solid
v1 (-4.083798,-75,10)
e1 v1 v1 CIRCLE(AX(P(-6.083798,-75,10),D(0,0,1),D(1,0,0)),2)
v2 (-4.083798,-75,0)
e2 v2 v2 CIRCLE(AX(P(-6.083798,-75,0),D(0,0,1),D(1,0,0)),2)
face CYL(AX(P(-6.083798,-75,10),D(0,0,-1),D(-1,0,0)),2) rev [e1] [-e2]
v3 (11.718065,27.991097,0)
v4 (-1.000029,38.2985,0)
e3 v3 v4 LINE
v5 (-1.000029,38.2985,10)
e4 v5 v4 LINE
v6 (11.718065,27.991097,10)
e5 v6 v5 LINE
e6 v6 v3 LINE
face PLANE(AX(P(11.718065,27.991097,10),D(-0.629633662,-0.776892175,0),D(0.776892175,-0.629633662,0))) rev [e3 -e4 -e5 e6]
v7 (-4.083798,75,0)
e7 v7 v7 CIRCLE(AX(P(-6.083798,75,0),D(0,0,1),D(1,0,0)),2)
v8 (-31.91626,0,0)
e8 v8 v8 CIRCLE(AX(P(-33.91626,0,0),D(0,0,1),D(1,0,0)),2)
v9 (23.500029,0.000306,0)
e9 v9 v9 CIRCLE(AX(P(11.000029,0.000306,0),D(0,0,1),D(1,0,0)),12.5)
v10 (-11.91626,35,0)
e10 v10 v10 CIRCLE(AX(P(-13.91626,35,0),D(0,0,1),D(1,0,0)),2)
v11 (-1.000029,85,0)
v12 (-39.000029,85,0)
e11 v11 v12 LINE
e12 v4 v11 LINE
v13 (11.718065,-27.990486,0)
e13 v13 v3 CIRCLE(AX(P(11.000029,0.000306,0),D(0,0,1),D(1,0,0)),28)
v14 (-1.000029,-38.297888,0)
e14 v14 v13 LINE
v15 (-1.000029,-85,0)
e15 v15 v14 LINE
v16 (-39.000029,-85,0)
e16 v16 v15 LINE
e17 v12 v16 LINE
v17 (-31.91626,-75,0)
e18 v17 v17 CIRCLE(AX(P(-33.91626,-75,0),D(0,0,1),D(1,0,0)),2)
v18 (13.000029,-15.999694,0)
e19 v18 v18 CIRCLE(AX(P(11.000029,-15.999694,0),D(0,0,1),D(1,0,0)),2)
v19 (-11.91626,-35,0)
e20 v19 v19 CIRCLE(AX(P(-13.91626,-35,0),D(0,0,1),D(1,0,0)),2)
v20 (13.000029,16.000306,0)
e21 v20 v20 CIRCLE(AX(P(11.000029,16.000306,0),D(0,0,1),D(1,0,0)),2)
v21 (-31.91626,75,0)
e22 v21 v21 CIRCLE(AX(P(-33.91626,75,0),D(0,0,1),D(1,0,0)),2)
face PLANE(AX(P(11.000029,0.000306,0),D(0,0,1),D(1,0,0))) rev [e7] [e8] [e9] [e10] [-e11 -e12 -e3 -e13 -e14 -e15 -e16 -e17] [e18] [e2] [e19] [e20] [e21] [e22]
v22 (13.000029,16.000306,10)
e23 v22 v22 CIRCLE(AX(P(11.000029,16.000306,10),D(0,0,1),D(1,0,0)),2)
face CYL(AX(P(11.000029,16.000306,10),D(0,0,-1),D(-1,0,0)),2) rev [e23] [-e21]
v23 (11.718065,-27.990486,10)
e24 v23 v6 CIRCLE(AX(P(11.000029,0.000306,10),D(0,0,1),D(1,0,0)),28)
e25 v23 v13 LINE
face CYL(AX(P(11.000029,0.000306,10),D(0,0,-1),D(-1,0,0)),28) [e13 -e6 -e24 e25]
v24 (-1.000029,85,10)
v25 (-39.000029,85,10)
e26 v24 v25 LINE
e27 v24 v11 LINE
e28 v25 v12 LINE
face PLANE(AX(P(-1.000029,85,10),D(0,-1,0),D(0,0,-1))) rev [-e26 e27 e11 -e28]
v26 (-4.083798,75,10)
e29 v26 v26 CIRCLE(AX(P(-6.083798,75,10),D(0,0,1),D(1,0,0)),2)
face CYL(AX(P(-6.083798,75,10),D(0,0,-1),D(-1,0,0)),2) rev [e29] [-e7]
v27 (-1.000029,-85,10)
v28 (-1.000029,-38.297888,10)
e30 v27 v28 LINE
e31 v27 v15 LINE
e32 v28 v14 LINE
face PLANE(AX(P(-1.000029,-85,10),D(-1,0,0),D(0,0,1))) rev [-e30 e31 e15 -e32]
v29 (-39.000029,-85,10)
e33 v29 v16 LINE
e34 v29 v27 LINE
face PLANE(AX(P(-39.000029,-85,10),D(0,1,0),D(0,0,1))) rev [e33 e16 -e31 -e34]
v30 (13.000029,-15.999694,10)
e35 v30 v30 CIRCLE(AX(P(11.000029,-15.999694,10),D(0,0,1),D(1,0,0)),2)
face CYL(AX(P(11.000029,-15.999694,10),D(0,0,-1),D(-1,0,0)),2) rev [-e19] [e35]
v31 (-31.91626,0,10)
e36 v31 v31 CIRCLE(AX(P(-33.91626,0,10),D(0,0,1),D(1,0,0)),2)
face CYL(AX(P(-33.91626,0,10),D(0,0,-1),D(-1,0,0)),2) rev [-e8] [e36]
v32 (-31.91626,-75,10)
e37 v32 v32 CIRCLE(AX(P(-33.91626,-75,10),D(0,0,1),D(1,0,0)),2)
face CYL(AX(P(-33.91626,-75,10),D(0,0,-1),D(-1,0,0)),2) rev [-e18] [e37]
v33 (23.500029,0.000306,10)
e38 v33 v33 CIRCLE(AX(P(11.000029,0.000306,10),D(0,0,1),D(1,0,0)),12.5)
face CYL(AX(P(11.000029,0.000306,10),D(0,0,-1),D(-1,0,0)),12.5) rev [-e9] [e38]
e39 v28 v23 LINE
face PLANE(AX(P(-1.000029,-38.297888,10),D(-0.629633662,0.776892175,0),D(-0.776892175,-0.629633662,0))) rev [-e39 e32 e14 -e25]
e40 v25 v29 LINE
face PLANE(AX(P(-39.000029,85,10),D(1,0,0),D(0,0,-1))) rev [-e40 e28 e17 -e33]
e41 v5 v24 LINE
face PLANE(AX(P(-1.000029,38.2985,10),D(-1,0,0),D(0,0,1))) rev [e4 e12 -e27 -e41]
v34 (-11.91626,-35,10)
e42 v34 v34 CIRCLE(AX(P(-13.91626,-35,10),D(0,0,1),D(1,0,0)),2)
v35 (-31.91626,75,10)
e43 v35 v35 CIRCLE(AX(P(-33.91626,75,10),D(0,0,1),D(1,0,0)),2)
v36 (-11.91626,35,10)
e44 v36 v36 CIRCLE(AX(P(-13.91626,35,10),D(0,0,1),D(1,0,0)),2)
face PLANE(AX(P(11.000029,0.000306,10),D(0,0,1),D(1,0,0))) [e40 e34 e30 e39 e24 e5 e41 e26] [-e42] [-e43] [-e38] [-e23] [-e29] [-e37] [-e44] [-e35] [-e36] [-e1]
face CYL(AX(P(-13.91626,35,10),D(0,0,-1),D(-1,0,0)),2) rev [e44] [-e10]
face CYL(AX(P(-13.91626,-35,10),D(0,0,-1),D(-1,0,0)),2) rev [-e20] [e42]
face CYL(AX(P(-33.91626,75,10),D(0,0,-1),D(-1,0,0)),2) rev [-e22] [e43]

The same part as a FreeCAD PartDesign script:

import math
import FreeCAD as App
import Part
import Sketcher
Q = App.Units.Quantity

doc = App.newDocument("Part")
body = doc.addObject("PartDesign::Body", "Body")

sketch1 = body.newObject("Sketcher::SketchObject", "Sketch")
sketch1.AttachmentSupport = (doc.getObject("XY_Plane"), [""])
sketch1.MapMode = "FlatFace"
sketch1.addGeometry(Part.LineSegment(App.Vector(-1.000029, -38.297888, 0), App.Vector(11.718065, -27.990486, 0)), False)
sketch1.addGeometry(Part.ArcOfCircle(Part.Circle(App.Vector(11.000029, 0.000306, 0), App.Vector(0, 0, 1), 28), math.radians(-88.530536), math.radians(88.530536)), False)
sketch1.addGeometry(Part.LineSegment(App.Vector(11.718065, 27.991097, 0), App.Vector(-1.000029, 38.2985, 0)), False)
sketch1.addGeometry(Part.LineSegment(App.Vector(-1.000029, 38.2985, 0), App.Vector(-1.000029, 85, 0)), False)
sketch1.addGeometry(Part.LineSegment(App.Vector(-1.000029, 85, 0), App.Vector(-39.000029, 85, 0)), False)
sketch1.addGeometry(Part.LineSegment(App.Vector(-39.000029, 85, 0), App.Vector(-39.000029, -85, 0)), False)
sketch1.addGeometry(Part.LineSegment(App.Vector(-39.000029, -85, 0), App.Vector(-1.000029, -85, 0)), False)
sketch1.addGeometry(Part.LineSegment(App.Vector(-1.000029, -85, 0), App.Vector(-1.000029, -38.297888, 0)), False)
sketch1.addGeometry(Part.Circle(App.Vector(-33.91626, -75, 0), App.Vector(0, 0, 1), 2), False)
sketch1.addGeometry(Part.Circle(App.Vector(-13.91626, -35, 0), App.Vector(0, 0, 1), 2), False)
sketch1.addGeometry(Part.Circle(App.Vector(-6.083798, -75, 0), App.Vector(0, 0, 1), 2), False)
sketch1.addGeometry(Part.Circle(App.Vector(11.000029, -15.999694, 0), App.Vector(0, 0, 1), 2), False)
sketch1.addGeometry(Part.Circle(App.Vector(-33.91626, 0, 0), App.Vector(0, 0, 1), 2), False)
sketch1.addGeometry(Part.Circle(App.Vector(-13.91626, 35, 0), App.Vector(0, 0, 1), 2), False)
sketch1.addGeometry(Part.Circle(App.Vector(-33.91626, 75, 0), App.Vector(0, 0, 1), 2), False)
sketch1.addGeometry(Part.Circle(App.Vector(11.000029, 0.000306, 0), App.Vector(0, 0, 1), 12.5), False)
sketch1.addGeometry(Part.Circle(App.Vector(11.000029, 16.000306, 0), App.Vector(0, 0, 1), 2), False)
sketch1.addGeometry(Part.Circle(App.Vector(-6.083798, 75, 0), App.Vector(0, 0, 1), 2), False)
sketch1.addConstraint(Sketcher.Constraint("Coincident", 0, 2, 1, 1))
sketch1.addConstraint(Sketcher.Constraint("Coincident", 1, 2, 2, 1))
sketch1.addConstraint(Sketcher.Constraint("Coincident", 2, 2, 3, 1))
sketch1.addConstraint(Sketcher.Constraint("Coincident", 3, 2, 4, 1))
sketch1.addConstraint(Sketcher.Constraint("Coincident", 4, 2, 5, 1))
sketch1.addConstraint(Sketcher.Constraint("Coincident", 5, 2, 6, 1))
sketch1.addConstraint(Sketcher.Constraint("Coincident", 6, 2, 7, 1))
sketch1.addConstraint(Sketcher.Constraint("Coincident", 7, 2, 0, 1))
sketch1.addConstraint(Sketcher.Constraint("Vertical", 3))
sketch1.addConstraint(Sketcher.Constraint("Horizontal", 4))
sketch1.addConstraint(Sketcher.Constraint("Vertical", 5))
sketch1.addConstraint(Sketcher.Constraint("Horizontal", 6))
sketch1.addConstraint(Sketcher.Constraint("Vertical", 7))
sketch1.addConstraint(Sketcher.Constraint("Coincident", 15, 3, 1, 3))
sketch1.addConstraint(Sketcher.Constraint("Equal", 8, 9))
sketch1.addConstraint(Sketcher.Constraint("Equal", 9, 10))
sketch1.addConstraint(Sketcher.Constraint("Equal", 10, 11))
sketch1.addConstraint(Sketcher.Constraint("Equal", 11, 12))
sketch1.addConstraint(Sketcher.Constraint("Equal", 12, 13))
sketch1.addConstraint(Sketcher.Constraint("Equal", 13, 14))
sketch1.addConstraint(Sketcher.Constraint("Equal", 14, 16))
sketch1.addConstraint(Sketcher.Constraint("Equal", 16, 17))
sketch1.addConstraint(Sketcher.Constraint("Symmetric", 9, 3, 13, 3, -1))
sketch1.addConstraint(Sketcher.Constraint("Symmetric", 8, 3, 14, 3, -1))
sketch1.addConstraint(Sketcher.Constraint("Symmetric", 10, 3, 17, 3, -1))
sketch1.addConstraint(Sketcher.Constraint("Symmetric", 3, 2, 6, 2, -1))
sketch1.addConstraint(Sketcher.Constraint("PointOnObject", 12, 3, -1))
sketch1.addConstraint(Sketcher.Constraint("Horizontal", 8, 3, 10, 3))
sketch1.addConstraint(Sketcher.Constraint("Vertical", 1, 3, 11, 3))
sketch1.addConstraint(Sketcher.Constraint("Vertical", 8, 3, 12, 3))
sketch1.addConstraint(Sketcher.Constraint("Vertical", 15, 3, 16, 3))
sketch1.addConstraint(Sketcher.Constraint("Vertical", 0, 2, 1, 2))
sketch1.addConstraint(Sketcher.Constraint("Equal", 0, 2))
sketch1.addConstraint(Sketcher.Constraint("Diameter", 8, Q("4 mm")))
sketch1.addConstraint(Sketcher.Constraint("Diameter", 15, Q("25 mm")))
sketch1.addConstraint(Sketcher.Constraint("Radius", 1, Q("28 mm")))
sketch1.addConstraint(Sketcher.Constraint("DistanceX", 4, 2, 4, 1, Q("38 mm")))
sketch1.addConstraint(Sketcher.Constraint("DistanceY", 5, 2, 5, 1, Q("170 mm")))
sketch1.addConstraint(Sketcher.Constraint("DistanceY", 8, 3, -1, 1, Q("75 mm")))
sketch1.addConstraint(Sketcher.Constraint("DistanceY", 9, 3, -1, 1, Q("35 mm")))
sketch1.addConstraint(Sketcher.Constraint("DistanceX", 8, 3, 9, 3, Q("20 mm")))
sketch1.addConstraint(Sketcher.Constraint("DistanceY", 11, 3, 1, 3, Q("16 mm")))
sketch1.addConstraint(Sketcher.Constraint("DistanceY", 1, 3, 16, 3, Q("16 mm")))
sketch1.addConstraint(Sketcher.Constraint("DistanceY", 3, 1, 3, 2, Q("46.7015 mm")))
sketch1.addConstraint(Sketcher.Constraint("DistanceY", 7, 1, 7, 2, Q("46.702112 mm")))
sketch1.addConstraint(Sketcher.Constraint("DistanceX", -1, 1, 1, 3, Q("11.000029 mm")))
sketch1.addConstraint(Sketcher.Constraint("DistanceX", 8, 3, -1, 1, Q("33.91626 mm")))
sketch1.addConstraint(Sketcher.Constraint("DistanceX", 2, 2, -1, 1, Q("1.000029 mm")))
sketch1.addConstraint(Sketcher.Constraint("DistanceY", 0, 2, 11, 3, Q("11.990792 mm")))
sketch1.addConstraint(Sketcher.Constraint("DistanceX", 17, 3, 2, 2, Q("5.083769 mm")))
pad1 = body.newObject("PartDesign::Pad", "Pad")
pad1.Profile = sketch1
pad1.Length = 10

doc.recompute()
